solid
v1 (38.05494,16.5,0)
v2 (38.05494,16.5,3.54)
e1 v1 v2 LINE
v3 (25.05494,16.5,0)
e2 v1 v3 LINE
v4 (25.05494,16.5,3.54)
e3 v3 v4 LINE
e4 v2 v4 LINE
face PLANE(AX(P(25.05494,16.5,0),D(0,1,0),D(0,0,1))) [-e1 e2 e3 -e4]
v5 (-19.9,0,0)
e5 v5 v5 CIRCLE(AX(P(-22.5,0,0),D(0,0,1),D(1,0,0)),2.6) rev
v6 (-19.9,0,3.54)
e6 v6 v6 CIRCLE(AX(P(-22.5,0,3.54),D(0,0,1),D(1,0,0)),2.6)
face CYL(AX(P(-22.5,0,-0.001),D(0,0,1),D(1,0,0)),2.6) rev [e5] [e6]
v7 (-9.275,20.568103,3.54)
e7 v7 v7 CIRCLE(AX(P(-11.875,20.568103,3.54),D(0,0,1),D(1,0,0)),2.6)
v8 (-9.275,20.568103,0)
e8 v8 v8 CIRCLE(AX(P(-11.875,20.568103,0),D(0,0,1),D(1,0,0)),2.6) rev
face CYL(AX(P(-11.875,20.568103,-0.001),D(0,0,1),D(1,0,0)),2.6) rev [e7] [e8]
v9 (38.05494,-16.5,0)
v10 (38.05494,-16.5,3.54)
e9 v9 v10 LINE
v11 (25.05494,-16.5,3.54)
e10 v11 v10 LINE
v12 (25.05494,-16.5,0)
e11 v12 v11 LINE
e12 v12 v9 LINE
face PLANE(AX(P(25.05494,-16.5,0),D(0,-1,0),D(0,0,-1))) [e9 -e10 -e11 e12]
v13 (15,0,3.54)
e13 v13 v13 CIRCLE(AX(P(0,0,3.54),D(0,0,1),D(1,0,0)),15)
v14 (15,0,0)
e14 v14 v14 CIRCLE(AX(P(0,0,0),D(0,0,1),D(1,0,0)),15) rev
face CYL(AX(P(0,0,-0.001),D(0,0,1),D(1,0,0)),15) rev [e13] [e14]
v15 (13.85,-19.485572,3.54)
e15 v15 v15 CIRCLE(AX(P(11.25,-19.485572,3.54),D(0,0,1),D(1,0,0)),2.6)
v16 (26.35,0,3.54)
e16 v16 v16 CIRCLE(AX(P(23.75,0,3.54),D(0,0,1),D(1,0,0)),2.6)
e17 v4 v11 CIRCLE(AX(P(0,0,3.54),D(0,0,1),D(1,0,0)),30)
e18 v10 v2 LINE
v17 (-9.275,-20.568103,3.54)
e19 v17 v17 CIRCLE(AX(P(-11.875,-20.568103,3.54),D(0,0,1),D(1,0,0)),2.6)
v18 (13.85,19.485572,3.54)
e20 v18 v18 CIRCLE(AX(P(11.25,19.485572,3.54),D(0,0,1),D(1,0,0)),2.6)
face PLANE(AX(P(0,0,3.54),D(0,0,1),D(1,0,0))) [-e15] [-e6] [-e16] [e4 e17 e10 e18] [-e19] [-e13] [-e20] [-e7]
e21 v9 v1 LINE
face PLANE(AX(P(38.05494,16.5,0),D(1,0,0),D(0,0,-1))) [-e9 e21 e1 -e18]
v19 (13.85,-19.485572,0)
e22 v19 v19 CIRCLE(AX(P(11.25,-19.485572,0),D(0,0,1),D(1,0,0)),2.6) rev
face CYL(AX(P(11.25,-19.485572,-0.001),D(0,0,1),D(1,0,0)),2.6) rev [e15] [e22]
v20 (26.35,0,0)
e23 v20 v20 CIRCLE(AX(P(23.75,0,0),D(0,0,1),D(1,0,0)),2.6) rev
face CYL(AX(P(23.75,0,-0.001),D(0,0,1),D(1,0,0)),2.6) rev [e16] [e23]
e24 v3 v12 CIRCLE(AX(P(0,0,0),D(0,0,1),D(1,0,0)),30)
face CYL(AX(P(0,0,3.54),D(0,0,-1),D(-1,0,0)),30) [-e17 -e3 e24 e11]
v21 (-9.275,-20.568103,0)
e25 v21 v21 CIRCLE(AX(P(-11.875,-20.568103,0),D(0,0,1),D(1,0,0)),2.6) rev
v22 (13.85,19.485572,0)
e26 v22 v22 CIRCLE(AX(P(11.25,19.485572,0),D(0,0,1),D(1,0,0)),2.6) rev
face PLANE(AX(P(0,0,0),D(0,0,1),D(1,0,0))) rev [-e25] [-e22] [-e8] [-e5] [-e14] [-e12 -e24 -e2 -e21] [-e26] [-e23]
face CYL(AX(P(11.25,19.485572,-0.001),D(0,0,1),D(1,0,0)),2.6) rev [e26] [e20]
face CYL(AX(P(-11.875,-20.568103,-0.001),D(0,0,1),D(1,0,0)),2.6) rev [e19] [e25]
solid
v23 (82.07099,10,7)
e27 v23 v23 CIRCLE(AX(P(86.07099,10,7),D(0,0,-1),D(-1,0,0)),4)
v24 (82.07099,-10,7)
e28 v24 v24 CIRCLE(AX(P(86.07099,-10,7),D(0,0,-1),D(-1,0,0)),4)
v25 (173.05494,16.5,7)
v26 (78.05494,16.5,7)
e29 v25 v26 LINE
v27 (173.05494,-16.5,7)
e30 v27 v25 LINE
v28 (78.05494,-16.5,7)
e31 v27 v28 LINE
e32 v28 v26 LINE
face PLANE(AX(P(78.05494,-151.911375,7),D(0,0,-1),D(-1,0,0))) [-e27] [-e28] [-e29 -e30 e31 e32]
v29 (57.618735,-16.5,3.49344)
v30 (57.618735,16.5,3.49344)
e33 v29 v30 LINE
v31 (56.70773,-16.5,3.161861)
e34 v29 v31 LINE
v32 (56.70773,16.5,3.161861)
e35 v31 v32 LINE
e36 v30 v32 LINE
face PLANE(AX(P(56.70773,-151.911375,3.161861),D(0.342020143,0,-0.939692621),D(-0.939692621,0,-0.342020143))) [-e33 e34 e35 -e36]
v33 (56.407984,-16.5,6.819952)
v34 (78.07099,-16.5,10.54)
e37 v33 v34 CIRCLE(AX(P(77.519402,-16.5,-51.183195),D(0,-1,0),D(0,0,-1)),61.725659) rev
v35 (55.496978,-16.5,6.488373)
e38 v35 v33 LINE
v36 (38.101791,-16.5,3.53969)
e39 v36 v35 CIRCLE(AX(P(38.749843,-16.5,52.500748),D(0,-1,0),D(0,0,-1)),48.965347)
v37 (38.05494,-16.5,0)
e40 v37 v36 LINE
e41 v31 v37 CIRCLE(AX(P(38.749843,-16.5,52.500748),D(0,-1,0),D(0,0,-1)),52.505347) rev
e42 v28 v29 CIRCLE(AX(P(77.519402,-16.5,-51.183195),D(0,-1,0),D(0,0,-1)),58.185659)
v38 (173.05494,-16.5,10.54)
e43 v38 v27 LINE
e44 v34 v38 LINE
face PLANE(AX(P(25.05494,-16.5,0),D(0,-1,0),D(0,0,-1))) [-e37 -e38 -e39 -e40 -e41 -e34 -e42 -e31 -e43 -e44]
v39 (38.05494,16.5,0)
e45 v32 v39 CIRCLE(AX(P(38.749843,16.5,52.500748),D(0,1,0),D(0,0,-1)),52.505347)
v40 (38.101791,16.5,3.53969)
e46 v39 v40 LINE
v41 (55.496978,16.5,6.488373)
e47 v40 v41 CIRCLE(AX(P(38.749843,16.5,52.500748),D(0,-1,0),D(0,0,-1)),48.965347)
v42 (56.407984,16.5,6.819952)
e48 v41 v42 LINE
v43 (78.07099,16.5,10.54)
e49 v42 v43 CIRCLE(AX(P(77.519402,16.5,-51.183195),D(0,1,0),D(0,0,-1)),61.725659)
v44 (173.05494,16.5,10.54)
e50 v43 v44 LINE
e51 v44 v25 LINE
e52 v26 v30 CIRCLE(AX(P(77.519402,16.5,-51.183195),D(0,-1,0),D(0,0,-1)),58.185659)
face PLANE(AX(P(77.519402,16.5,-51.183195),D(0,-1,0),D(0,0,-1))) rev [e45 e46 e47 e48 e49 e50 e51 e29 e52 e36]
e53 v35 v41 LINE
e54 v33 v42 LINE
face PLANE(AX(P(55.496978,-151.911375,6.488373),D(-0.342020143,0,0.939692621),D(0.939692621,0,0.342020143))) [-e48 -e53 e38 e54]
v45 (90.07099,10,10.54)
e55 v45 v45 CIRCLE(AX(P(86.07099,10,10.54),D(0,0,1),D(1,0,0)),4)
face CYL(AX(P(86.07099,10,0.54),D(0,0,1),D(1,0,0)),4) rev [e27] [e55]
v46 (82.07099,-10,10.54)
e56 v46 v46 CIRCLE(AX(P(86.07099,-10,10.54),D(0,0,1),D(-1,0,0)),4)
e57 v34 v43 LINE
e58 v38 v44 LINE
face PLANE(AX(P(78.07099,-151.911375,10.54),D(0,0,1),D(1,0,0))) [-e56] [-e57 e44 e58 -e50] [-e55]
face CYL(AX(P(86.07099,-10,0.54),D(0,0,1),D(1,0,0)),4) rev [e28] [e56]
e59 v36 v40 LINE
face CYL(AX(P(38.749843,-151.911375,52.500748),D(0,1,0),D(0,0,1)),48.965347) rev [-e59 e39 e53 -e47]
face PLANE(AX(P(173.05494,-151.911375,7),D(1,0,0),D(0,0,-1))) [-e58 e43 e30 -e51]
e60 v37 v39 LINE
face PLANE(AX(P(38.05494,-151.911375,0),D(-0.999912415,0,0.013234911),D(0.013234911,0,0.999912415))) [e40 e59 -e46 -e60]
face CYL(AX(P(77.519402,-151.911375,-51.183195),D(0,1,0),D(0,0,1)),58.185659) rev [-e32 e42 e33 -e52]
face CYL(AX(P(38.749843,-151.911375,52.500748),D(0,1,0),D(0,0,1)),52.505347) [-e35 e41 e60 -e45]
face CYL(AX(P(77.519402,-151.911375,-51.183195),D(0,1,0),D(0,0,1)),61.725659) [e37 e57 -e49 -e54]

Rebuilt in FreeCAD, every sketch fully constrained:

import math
import FreeCAD as App
import Part
import Sketcher

V = App.Vector
Q = App.Units.Quantity

doc = App.newDocument("Part")
body = doc.addObject("PartDesign::Body", "Body")

sketch1 = doc.addObject("Sketcher::SketchObject", "Sketch")
body.addObject(sketch1)
sketch1.AttachmentSupport = (doc.XY_Plane, [""])
sketch1.MapMode = "FlatFace"
sketch1.addGeometry(Part.Circle(V(0, 0, 0), V(0, 0, 1), 30), False)
sketch1.addConstraint([
    Sketcher.Constraint("Coincident", 0, 3, -1, 1),
    Sketcher.Constraint("Diameter", 0, Q("60 mm")),
])
pad1 = doc.addObject("PartDesign::Pad", "Pad")
body.addObject(pad1)
pad1.Profile = sketch1
pad1.Length = 3.54

sketch2 = doc.addObject("Sketcher::SketchObject", "Sketch001")
body.addObject(sketch2)
sketch2.AttachmentSupport = (doc.XY_Plane, [""])
sketch2.MapMode = "FlatFace"
sketch2.addGeometry([
    Part.LineSegment(V(38, 16, 0), V(25, 16, 0)),
    Part.ArcOfCircle(Part.Circle(V(0, 0, 0), V(0, 0, 1), 30), math.radians(-33), math.radians(33)),
    Part.LineSegment(V(25, -16, 0), V(38, -16, 0)),
    Part.LineSegment(V(38, -16, 0), V(38, 16, 0)),
], False)
sketch2.addConstraint([
    Sketcher.Constraint("Coincident", 0, 2, 1, 2),
    Sketcher.Constraint("Coincident", 1, 1, 2, 1),
    Sketcher.Constraint("Coincident", 2, 2, 3, 1),
    Sketcher.Constraint("Coincident", 3, 2, 0, 1),
    Sketcher.Constraint("Horizontal", 0),
    Sketcher.Constraint("Horizontal", 2),
    Sketcher.Constraint("Vertical", 3),
    Sketcher.Constraint("Coincident", 1, 3, -1, 1),
    Sketcher.Constraint("Vertical", 0, 2, 1, 1),
    Sketcher.Constraint("Radius", 1, Q("30 mm")),
    Sketcher.Constraint("DistanceX", 0, 2, 0, 1, Q("13 mm")),
    Sketcher.Constraint("DistanceY", 3, 1, 3, 2, Q("33 mm")),
])
pad2 = doc.addObject("PartDesign::Pad", "Pad001")
body.addObject(pad2)
pad2.Profile = sketch2
pad2.Length = 3.54

sketch3 = doc.addObject("Sketcher::SketchObject", "Sketch002")
body.addObject(sketch3)
sketch3.AttachmentSupport = (doc.XY_Plane, [""])
sketch3.MapMode = "FlatFace"
sketch3.AttachmentOffset = App.Placement(V(0, 0, 3.54), App.Rotation())
sketch3.addGeometry(Part.Circle(V(0, 0, 0), V(0, 0, 1), 15), False)
sketch3.addConstraint([
    Sketcher.Constraint("Coincident", 0, 3, -1, 1),
    Sketcher.Constraint("Diameter", 0, Q("30 mm")),
])
pocket1 = doc.addObject("PartDesign::Pocket", "Pocket")
body.addObject(pocket1)
pocket1.Profile = sketch3
pocket1.Type = "UpToFirst"

sketch4 = doc.addObject("Sketcher::SketchObject", "Sketch003")
body.addObject(sketch4)
sketch4.AttachmentSupport = (doc.XY_Plane, [""])
sketch4.MapMode = "FlatFace"
sketch4.AttachmentOffset = App.Placement(V(0, 0, 3.54), App.Rotation())
sketch4.addGeometry(Part.Circle(V(-22.5, 0, 0), V(0, 0, 1), 2.6), False)
sketch4.addConstraint([
    Sketcher.Constraint("PointOnObject", 0, 3, -1),
    Sketcher.Constraint("Diameter", 0, Q("5.2 mm")),
    Sketcher.Constraint("DistanceX", 0, 3, -1, 1, Q("22.5 mm")),
])
pocket2 = doc.addObject("PartDesign::Pocket", "Pocket001")
body.addObject(pocket2)
pocket2.Profile = sketch4
pocket2.Type = "UpToFirst"

sketch5 = doc.addObject("Sketcher::SketchObject", "Sketch004")
body.addObject(sketch5)
sketch5.AttachmentSupport = (doc.XY_Plane, [""])
sketch5.MapMode = "FlatFace"
sketch5.AttachmentOffset = App.Placement(V(0, 0, 3.54), App.Rotation())
sketch5.addGeometry(Part.Circle(V(11.2, 19.5, 0), V(0, 0, 1), 2.6), False)
sketch5.addConstraint([
    Sketcher.Constraint("Diameter", 0, Q("5.2 mm")),
    Sketcher.Constraint("DistanceX", -1, 1, 0, 3, Q("11.25 mm")),
    Sketcher.Constraint("DistanceY", -1, 1, 0, 3, Q("19.485572 mm")),
])
pocket3 = doc.addObject("PartDesign::Pocket", "Pocket002")
body.addObject(pocket3)
pocket3.Profile = sketch5
pocket3.Type = "UpToFirst"

sketch6 = doc.addObject("Sketcher::SketchObject", "Sketch005")
body.addObject(sketch6)
sketch6.AttachmentSupport = (doc.XY_Plane, [""])
sketch6.MapMode = "FlatFace"
sketch6.AttachmentOffset = App.Placement(V(0, 0, 3.54), App.Rotation())
sketch6.addGeometry(Part.Circle(V(11.2, -19.5, 0), V(0, 0, 1), 2.6), False)
sketch6.addConstraint([
    Sketcher.Constraint("Diameter", 0, Q("5.2 mm")),
    Sketcher.Constraint("DistanceX", -1, 1, 0, 3, Q("11.25 mm")),
    Sketcher.Constraint("DistanceY", 0, 3, -1, 1, Q("19.485572 mm")),
])
pocket4 = doc.addObject("PartDesign::Pocket", "Pocket003")
body.addObject(pocket4)
pocket4.Profile = sketch6
pocket4.Type = "UpToFirst"

sketch7 = doc.addObject("Sketcher::SketchObject", "Sketch006")
body.addObject(sketch7)
sketch7.AttachmentSupport = (doc.XY_Plane, [""])
sketch7.MapMode = "FlatFace"
sketch7.AttachmentOffset = App.Placement(V(0, 0, 3.54), App.Rotation())
sketch7.addGeometry(Part.Circle(V(23.8, 0, 0), V(0, 0, 1), 2.6), False)
sketch7.addConstraint([
    Sketcher.Constraint("PointOnObject", 0, 3, -1),
    Sketcher.Constraint("Diameter", 0, Q("5.2 mm")),
    Sketcher.Constraint("DistanceX", -1, 1, 0, 3, Q("23.75 mm")),
])
pocket5 = doc.addObject("PartDesign::Pocket", "Pocket004")
body.addObject(pocket5)
pocket5.Profile = sketch7
pocket5.Type = "UpToFirst"

sketch8 = doc.addObject("Sketcher::SketchObject", "Sketch007")
body.addObject(sketch8)
sketch8.AttachmentSupport = (doc.XY_Plane, [""])
sketch8.MapMode = "FlatFace"
sketch8.AttachmentOffset = App.Placement(V(0, 0, 3.54), App.Rotation())
sketch8.addGeometry(Part.Circle(V(-11.9, -20.6, 0), V(0, 0, 1), 2.6), False)
sketch8.addConstraint([
    Sketcher.Constraint("Diameter", 0, Q("5.2 mm")),
    Sketcher.Constraint("DistanceX", 0, 3, -1, 1, Q("11.875 mm")),
    Sketcher.Constraint("DistanceY", 0, 3, -1, 1, Q("20.568103 mm")),
])
pocket6 = doc.addObject("PartDesign::Pocket", "Pocket005")
body.addObject(pocket6)
pocket6.Profile = sketch8
pocket6.Type = "UpToFirst"

sketch9 = doc.addObject("Sketcher::SketchObject", "Sketch008")
body.addObject(sketch9)
sketch9.AttachmentSupport = (doc.XY_Plane, [""])
sketch9.MapMode = "FlatFace"
sketch9.AttachmentOffset = App.Placement(V(0, 0, 3.54), App.Rotation())
sketch9.addGeometry(Part.Circle(V(-11.9, 20.6, 0), V(0, 0, 1), 2.6), False)
sketch9.addConstraint([
    Sketcher.Constraint("Diameter", 0, Q("5.2 mm")),
    Sketcher.Constraint("DistanceX", 0, 3, -1, 1, Q("11.875 mm")),
    Sketcher.Constraint("DistanceY", -1, 1, 0, 3, Q("20.568103 mm")),
])
pocket7 = doc.addObject("PartDesign::Pocket", "Pocket006")
body.addObject(pocket7)
pocket7.Profile = sketch9
pocket7.Type = "UpToFirst"
body2 = doc.addObject("PartDesign::Body", "Body001")

sketch10 = doc.addObject("Sketcher::SketchObject", "Sketch009")
body2.addObject(sketch10)
sketch10.AttachmentSupport = (doc.getObject("XZ_Plane001"), [""])
sketch10.MapMode = "FlatFace"
sketch10.AttachmentOffset = App.Placement(V(0, 0, -16.5), App.Rotation())
sketch10.addGeometry([
    Part.LineSegment(V(173.05494, 7, 0), V(78.05494, 7, 0)),
    Part.ArcOfCircle(Part.Circle(V(77.519402, -51.183195, 0), V(0, 0, 1), 58.185659), math.radians(89.472646), math.radians(110)),
    Part.LineSegment(V(57.618735, 3.49344, 0), V(56.70773, 3.161861, 0)),
    Part.ArcOfCircle(Part.Circle(V(38.749843, 52.500748, 0), V(0, 0, 1), 52.505347), math.radians(-90.758327), math.radians(-70)),
    Part.LineSegment(V(38.05494, 0, 0), V(38.101791, 3.53969, 0)),
    Part.ArcOfCircle(Part.Circle(V(38.749843, 52.500748, 0), V(0, 0, 1), 48.965347), math.radians(-90.758327), math.radians(-70)),
    Part.LineSegment(V(55.496978, 6.488373, 0), V(56.407984, 6.819952, 0)),
    Part.ArcOfCircle(Part.Circle(V(77.519402, -51.183195, 0), V(0, 0, 1), 61.725659), math.radians(89.487991), math.radians(110)),
    Part.LineSegment(V(78.07099, 10.54, 0), V(173.05494, 10.54, 0)),
    Part.LineSegment(V(173.05494, 10.54, 0), V(173.05494, 7, 0)),
], False)
sketch10.addConstraint([
    Sketcher.Constraint("Coincident", 0, 2, 1, 1),
    Sketcher.Constraint("Tangent", 1, 2, 2, 1),
    Sketcher.Constraint("Tangent", 2, 2, 3, 2),
    Sketcher.Constraint("Coincident", 3, 1, 4, 1),
    Sketcher.Constraint("Coincident", 4, 2, 5, 1),
    Sketcher.Constraint("Tangent", 5, 2, 6, 1),
    Sketcher.Constraint("Tangent", 6, 2, 7, 2),
    Sketcher.Constraint("Coincident", 7, 1, 8, 1),
    Sketcher.Constraint("Coincident", 8, 2, 9, 1),
    Sketcher.Constraint("Coincident", 9, 2, 0, 1),
    Sketcher.Constraint("Horizontal", 0),
    Sketcher.Constraint("Horizontal", 8),
    Sketcher.Constraint("Vertical", 9),
    Sketcher.Constraint("Coincident", 5, 3, 3, 3),
    Sketcher.Constraint("Coincident", 7, 3, 1, 3),
    Sketcher.Constraint("PointOnObject", 3, 1, -1),
    Sketcher.Constraint("Parallel", 2, 6),
    Sketcher.Constraint("DistanceX", 0, 2, 0, 1, Q("95 mm")),
    Sketcher.Constraint("Angle", 2, Q("-160 deg")),
    Sketcher.Constraint("DistanceY", -1, 1, 0, 2, Q("7 mm")),
    Sketcher.Constraint("DistanceX", 3, 1, 0, 2, Q("40 mm")),
    Sketcher.Constraint("DistanceY", 9, 2, 9, 1, Q("3.54 mm")),
    Sketcher.Constraint("Distance", 4, Q("3.54 mm")),
    Sketcher.Constraint("Radius", 1, Q("58.185659 mm")),
    Sketcher.Constraint("Radius", 3, Q("52.505347 mm")),
    Sketcher.Constraint("DistanceX", 8, 1, 8, 2, Q("94.983949 mm")),
    Sketcher.Constraint("DistanceX", -1, 1, 0, 2, Q("78.05494 mm")),
    Sketcher.Constraint("DistanceX", -1, 1, 4, 2, Q("38.101791 mm")),
])
pad3 = doc.addObject("PartDesign::Pad", "Pad002")
body2.addObject(pad3)
pad3.Profile = sketch10
pad3.Length = 33

sketch11 = doc.addObject("Sketcher::SketchObject", "Sketch010")
body2.addObject(sketch11)
sketch11.AttachmentSupport = (doc.getObject("XY_Plane001"), [""])
sketch11.MapMode = "FlatFace"
sketch11.AttachmentOffset = App.Placement(V(0, 0, 10.54), App.Rotation())
sketch11.addGeometry([
    Part.Circle(V(86.1, 10, 0), V(0, 0, 1), 4),
    Part.Circle(V(86.1, -10, 0), V(0, 0, 1), 4),
], False)
sketch11.addConstraint([
    Sketcher.Constraint("Equal", 0, 1),
    Sketcher.Constraint("Symmetric", 0, 3, 1, 3, -1),
    Sketcher.Constraint("Diameter", 0, Q("8 mm")),
    Sketcher.Constraint("DistanceY", -1, 1, 0, 3, Q("10 mm")),
    Sketcher.Constraint("DistanceX", -1, 1, 0, 3, Q("86.07099 mm")),
])
pocket8 = doc.addObject("PartDesign::Pocket", "Pocket007")
body2.addObject(pocket8)
pocket8.Profile = sketch11
pocket8.Length = 10

doc.recompute()
